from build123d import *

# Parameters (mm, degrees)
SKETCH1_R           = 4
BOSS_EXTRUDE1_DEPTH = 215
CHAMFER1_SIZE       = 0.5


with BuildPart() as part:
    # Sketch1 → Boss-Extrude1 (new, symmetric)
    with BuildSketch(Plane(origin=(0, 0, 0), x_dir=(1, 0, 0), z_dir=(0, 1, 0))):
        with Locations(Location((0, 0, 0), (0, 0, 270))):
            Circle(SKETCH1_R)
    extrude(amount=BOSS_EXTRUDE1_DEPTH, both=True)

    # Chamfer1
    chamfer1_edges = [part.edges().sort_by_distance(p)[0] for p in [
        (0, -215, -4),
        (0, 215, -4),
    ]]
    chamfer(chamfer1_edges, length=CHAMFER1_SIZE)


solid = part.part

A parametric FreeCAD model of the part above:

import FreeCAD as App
import Part
import Sketcher
from FreeCAD import Vector
Q = App.Units.Quantity


def edges_at(feature, points):
    """Names of the edges that pass closest to the given points."""
    edges = feature.Shape.Edges
    near = lambda p: min(range(len(edges)), key=lambda i: edges[i].distToShape(Part.Vertex(*p))[0])
    return sorted({f"Edge{near(p) + 1}" for p in points})

doc = App.newDocument("Part")
body = doc.addObject("PartDesign::Body", "Body")

# Sketch on XZ plane
sketch1 = body.newObject("Sketcher::SketchObject", "Sketch")
sketch1.AttachmentSupport = (doc.getObject("XZ_Plane"), [""])
sketch1.MapMode = "FlatFace"
sketch1.addGeometry(Part.Circle(Vector(0, 0, 0), Vector(0, 0, 1), 4), False)
sketch1.addConstraint([
    Sketcher.Constraint("Coincident", 0, 3, -1, 1),
    Sketcher.Constraint("Diameter", 0, Q("8 mm")),
])
pad1 = body.newObject("PartDesign::Pad", "Pad")
pad1.Profile = sketch1
pad1.Length = 430
pad1.Midplane = True
doc.recompute()

chamfer = body.newObject("PartDesign::Chamfer", "Chamfer")
chamfer.Base = (pad1, edges_at(pad1, [(0, -215, -4), (0, 215, -4)]))
chamfer.Size = 0.5

doc.recompute()
